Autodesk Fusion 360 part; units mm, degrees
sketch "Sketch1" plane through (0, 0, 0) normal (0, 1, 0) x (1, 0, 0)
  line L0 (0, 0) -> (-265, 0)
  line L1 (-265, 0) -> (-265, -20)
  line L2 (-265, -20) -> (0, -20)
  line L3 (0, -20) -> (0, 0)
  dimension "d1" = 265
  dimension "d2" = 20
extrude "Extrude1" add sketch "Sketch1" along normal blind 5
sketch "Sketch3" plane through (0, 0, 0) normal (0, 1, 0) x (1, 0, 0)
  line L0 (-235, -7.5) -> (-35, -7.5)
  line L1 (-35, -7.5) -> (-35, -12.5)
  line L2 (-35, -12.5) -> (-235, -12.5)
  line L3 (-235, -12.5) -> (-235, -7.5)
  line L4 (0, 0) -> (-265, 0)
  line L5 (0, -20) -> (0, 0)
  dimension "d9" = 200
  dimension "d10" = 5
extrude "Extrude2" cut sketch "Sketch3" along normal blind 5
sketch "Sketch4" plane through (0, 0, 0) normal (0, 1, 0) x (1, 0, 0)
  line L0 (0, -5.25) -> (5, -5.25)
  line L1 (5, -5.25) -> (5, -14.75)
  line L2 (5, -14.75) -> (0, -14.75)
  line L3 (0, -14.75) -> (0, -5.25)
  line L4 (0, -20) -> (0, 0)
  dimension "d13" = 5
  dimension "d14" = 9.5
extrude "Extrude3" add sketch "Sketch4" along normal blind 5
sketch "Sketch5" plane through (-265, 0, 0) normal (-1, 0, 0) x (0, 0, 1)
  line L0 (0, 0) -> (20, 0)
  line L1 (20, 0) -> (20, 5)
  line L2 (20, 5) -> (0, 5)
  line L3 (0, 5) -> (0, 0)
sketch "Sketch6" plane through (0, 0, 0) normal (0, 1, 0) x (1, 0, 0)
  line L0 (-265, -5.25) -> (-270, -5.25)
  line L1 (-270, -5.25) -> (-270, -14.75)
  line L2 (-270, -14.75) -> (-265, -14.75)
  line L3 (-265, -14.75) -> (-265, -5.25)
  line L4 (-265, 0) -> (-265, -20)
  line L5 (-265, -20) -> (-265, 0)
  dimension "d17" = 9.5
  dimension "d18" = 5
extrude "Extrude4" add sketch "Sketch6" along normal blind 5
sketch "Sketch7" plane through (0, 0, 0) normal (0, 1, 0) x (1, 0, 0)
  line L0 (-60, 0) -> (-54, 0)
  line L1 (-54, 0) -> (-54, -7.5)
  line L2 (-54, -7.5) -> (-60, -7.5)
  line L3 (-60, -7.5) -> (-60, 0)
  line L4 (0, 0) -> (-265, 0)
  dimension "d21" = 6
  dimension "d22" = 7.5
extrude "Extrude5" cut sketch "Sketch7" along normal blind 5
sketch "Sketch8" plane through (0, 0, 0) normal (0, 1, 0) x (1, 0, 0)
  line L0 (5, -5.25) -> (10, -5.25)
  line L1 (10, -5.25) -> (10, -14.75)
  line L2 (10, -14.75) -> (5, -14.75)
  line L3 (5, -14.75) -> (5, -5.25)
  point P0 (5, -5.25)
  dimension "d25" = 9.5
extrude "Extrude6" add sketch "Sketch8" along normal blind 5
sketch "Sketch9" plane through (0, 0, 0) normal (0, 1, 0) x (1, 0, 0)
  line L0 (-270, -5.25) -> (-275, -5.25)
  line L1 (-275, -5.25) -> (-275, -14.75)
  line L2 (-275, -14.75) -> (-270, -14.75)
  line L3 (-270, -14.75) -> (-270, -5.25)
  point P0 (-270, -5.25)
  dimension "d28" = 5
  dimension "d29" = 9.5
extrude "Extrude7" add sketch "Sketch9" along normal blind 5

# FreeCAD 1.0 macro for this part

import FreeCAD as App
import Part
import Sketcher

V = App.Vector
Q = App.Units.Quantity


def add_polygon(sketch, points):
    """Adds a closed chain of lines whose ends are joined by coincident constraints."""
    first, n = sketch.GeometryCount, len(points)
    for a, b in zip(points, points[1:] + points[:1]):
        sketch.addGeometry(Part.LineSegment(App.Vector(*a, 0), App.Vector(*b, 0)), False)
    for i in range(n):
        sketch.addConstraint(Sketcher.Constraint("Coincident", first + i, 2, first + (i + 1) % n, 1))

doc = App.newDocument("Part")
params = doc.addObject("Spreadsheet::Sheet", "Params")
for row, (alias, value) in enumerate([
    ("sketch1_width", "265 mm"),
    ("sketch1_height", "20 mm"),
    ("pad1_length", "5 mm"),
    ("sketch2_width", "200 mm"),
    ("sketch2_height", "5 mm"),
    ("pocket1_length", "5 mm"),
    ("sketch3_width", "5 mm"),
    ("sketch3_height", "9.5 mm"),
    ("pad2_length", "5 mm"),
    ("sketch4_width", "5 mm"),
    ("sketch4_height", "9.5 mm"),
    ("pad3_length", "5 mm"),
    ("sketch5_width", "6 mm"),
    ("sketch5_height", "7.5 mm"),
    ("pocket2_length", "5 mm"),
    ("sketch6_height", "9.5 mm"),
    ("sketch6_width", "5 mm"),
    ("pad4_length", "5 mm"),
    ("sketch7_width", "5 mm"),
    ("sketch7_height", "9.5 mm"),
    ("pad5_length", "5 mm"),
], start=1):
    params.set(f"A{row}", alias)
    params.set(f"B{row}", "=" + value)
    params.setAlias(f"B{row}", alias)

body = doc.addObject("PartDesign::Body", "Body")

sketch1 = body.newObject("Sketcher::SketchObject", "Sketch")
sketch1.AttachmentSupport = (doc.getObject("XZ_Plane"), [""])
sketch1.MapMode = "FlatFace"
add_polygon(sketch1, [(0, 20), (0, 0), (-265, 0), (-265, 20)])
sketch1.addConstraint(Sketcher.Constraint("Vertical", 0))
sketch1.addConstraint(Sketcher.Constraint("Horizontal", 1))
sketch1.addConstraint(Sketcher.Constraint("Vertical", 2))
sketch1.addConstraint(Sketcher.Constraint("Horizontal", 3))
sketch1.addConstraint(Sketcher.Constraint("Coincident", 0, 2, -1, 1))
sketch1.addConstraint(Sketcher.Constraint("DistanceX", 1, 2, 1, 1, Q("265 mm")))
sketch1.addConstraint(Sketcher.Constraint("DistanceY", 0, 2, 0, 1, Q("20 mm")))
sketch1.setExpression("Constraints[9]", "Params.sketch1_width")
sketch1.setExpression("Constraints[10]", "Params.sketch1_height")
pad1 = body.newObject("PartDesign::Pad", "Pad")
pad1.Profile = sketch1
pad1.setExpression("Length", "Params.pad1_length")
pad1.Reversed = True

sketch2 = body.newObject("Sketcher::SketchObject", "Sketch001")
sketch2.AttachmentSupport = (doc.getObject("XZ_Plane"), [""])
sketch2.MapMode = "FlatFace"
add_polygon(sketch2, [(-35, 8), (-235, 8), (-235, 12), (-35, 12)])
sketch2.addConstraint(Sketcher.Constraint("Horizontal", 0))
sketch2.addConstraint(Sketcher.Constraint("Vertical", 1))
sketch2.addConstraint(Sketcher.Constraint("Horizontal", 2))
sketch2.addConstraint(Sketcher.Constraint("Vertical", 3))
sketch2.addConstraint(Sketcher.Constraint("DistanceX", 0, 2, 0, 1, Q("200 mm")))
sketch2.addConstraint(Sketcher.Constraint("DistanceY", 1, 1, 1, 2, Q("5 mm")))
sketch2.addConstraint(Sketcher.Constraint("DistanceX", 0, 2, -1, 1, Q("235 mm")))
sketch2.addConstraint(Sketcher.Constraint("DistanceY", -1, 1, 0, 2, Q("7.5 mm")))
sketch2.setExpression("Constraints[8]", "Params.sketch2_width")
sketch2.setExpression("Constraints[9]", "Params.sketch2_height")
pocket1 = body.newObject("PartDesign::Pocket", "Pocket")
pocket1.Profile = sketch2
pocket1.setExpression("Length", "Params.pocket1_length")

sketch3 = body.newObject("Sketcher::SketchObject", "Sketch002")
sketch3.AttachmentSupport = (doc.getObject("XZ_Plane"), [""])
sketch3.MapMode = "FlatFace"
add_polygon(sketch3, [(5, 5), (0, 5), (0, 15), (5, 15)])
sketch3.addConstraint(Sketcher.Constraint("Horizontal", 0))
sketch3.addConstraint(Sketcher.Constraint("Vertical", 1))
sketch3.addConstraint(Sketcher.Constraint("Horizontal", 2))
sketch3.addConstraint(Sketcher.Constraint("Vertical", 3))
sketch3.addConstraint(Sketcher.Constraint("PointOnObject", 0, 2, -2))
sketch3.addConstraint(Sketcher.Constraint("DistanceX", 0, 2, 0, 1, Q("5 mm")))
sketch3.addConstraint(Sketcher.Constraint("DistanceY", 1, 1, 1, 2, Q("9.5 mm")))
sketch3.addConstraint(Sketcher.Constraint("DistanceY", -1, 1, 0, 2, Q("5.25 mm")))
sketch3.setExpression("Constraints[9]", "Params.sketch3_width")
sketch3.setExpression("Constraints[10]", "Params.sketch3_height")
pad2 = body.newObject("PartDesign::Pad", "Pad001")
pad2.Profile = sketch3
pad2.setExpression("Length", "Params.pad2_length")
pad2.Reversed = True

sketch4 = body.newObject("Sketcher::SketchObject", "Sketch003")
sketch4.AttachmentSupport = (doc.getObject("XZ_Plane"), [""])
sketch4.MapMode = "FlatFace"
add_polygon(sketch4, [(-265, 15), (-265, 5), (-270, 5), (-270, 15)])
sketch4.addConstraint(Sketcher.Constraint("Vertical", 0))
sketch4.addConstraint(Sketcher.Constraint("Horizontal", 1))
sketch4.addConstraint(Sketcher.Constraint("Vertical", 2))
sketch4.addConstraint(Sketcher.Constraint("Horizontal", 3))
sketch4.addConstraint(Sketcher.Constraint("DistanceX", 1, 2, 1, 1, Q("5 mm")))
sketch4.addConstraint(Sketcher.Constraint("DistanceY", 0, 2, 0, 1, Q("9.5 mm")))
sketch4.addConstraint(Sketcher.Constraint("DistanceX", 0, 2, -1, 1, Q("265 mm")))
sketch4.addConstraint(Sketcher.Constraint("DistanceY", -1, 1, 0, 2, Q("5.25 mm")))
sketch4.setExpression("Constraints[8]", "Params.sketch4_width")
sketch4.setExpression("Constraints[9]", "Params.sketch4_height")
pad3 = body.newObject("PartDesign::Pad", "Pad002")
pad3.Profile = sketch4
pad3.setExpression("Length", "Params.pad3_length")
pad3.Reversed = True

sketch5 = body.newObject("Sketcher::SketchObject", "Sketch004")
sketch5.AttachmentSupport = (doc.getObject("XZ_Plane"), [""])
sketch5.MapMode = "FlatFace"
add_polygon(sketch5, [(-54, 0), (-60, 0), (-60, 8), (-54, 8)])
sketch5.addConstraint(Sketcher.Constraint("Horizontal", 0))
sketch5.addConstraint(Sketcher.Constraint("Vertical", 1))
sketch5.addConstraint(Sketcher.Constraint("Horizontal", 2))
sketch5.addConstraint(Sketcher.Constraint("Vertical", 3))
sketch5.addConstraint(Sketcher.Constraint("PointOnObject", 0, 2, -1))
sketch5.addConstraint(Sketcher.Constraint("DistanceX", 0, 2, 0, 1, Q("6 mm")))
sketch5.addConstraint(Sketcher.Constraint("DistanceY", 1, 1, 1, 2, Q("7.5 mm")))
sketch5.addConstraint(Sketcher.Constraint("DistanceX", 0, 2, -1, 1, Q("60 mm")))
sketch5.setExpression("Constraints[9]", "Params.sketch5_width")
sketch5.setExpression("Constraints[10]", "Params.sketch5_height")
pocket2 = body.newObject("PartDesign::Pocket", "Pocket001")
pocket2.Profile = sketch5
pocket2.setExpression("Length", "Params.pocket2_length")

sketch6 = body.newObject("Sketcher::SketchObject", "Sketch005")
sketch6.AttachmentSupport = (doc.getObject("XZ_Plane"), [""])
sketch6.MapMode = "FlatFace"
add_polygon(sketch6, [(10, 5), (5, 5), (5, 15), (10, 15)])
sketch6.addConstraint(Sketcher.Constraint("Horizontal", 0))
sketch6.addConstraint(Sketcher.Constraint("Vertical", 1))
sketch6.addConstraint(Sketcher.Constraint("Horizontal", 2))
sketch6.addConstraint(Sketcher.Constraint("Vertical", 3))
sketch6.addConstraint(Sketcher.Constraint("DistanceY", 1, 1, 1, 2, Q("9.5 mm")))
sketch6.addConstraint(Sketcher.Constraint("DistanceX", 0, 2, 0, 1, Q("5 mm")))
sketch6.addConstraint(Sketcher.Constraint("DistanceX", -1, 1, 0, 2, Q("5 mm")))
sketch6.addConstraint(Sketcher.Constraint("DistanceY", -1, 1, 0, 2, Q("5.25 mm")))
sketch6.setExpression("Constraints[8]", "Params.sketch6_height")
sketch6.setExpression("Constraints[9]", "Params.sketch6_width")
pad4 = body.newObject("PartDesign::Pad", "Pad003")
pad4.Profile = sketch6
pad4.setExpression("Length", "Params.pad4_length")
pad4.Reversed = True

sketch7 = body.newObject("Sketcher::SketchObject", "Sketch006")
sketch7.AttachmentSupport = (doc.getObject("XZ_Plane"), [""])
sketch7.MapMode = "FlatFace"
add_polygon(sketch7, [(-270, 15), (-270, 5), (-275, 5), (-275, 15)])
sketch7.addConstraint(Sketcher.Constraint("Vertical", 0))
sketch7.addConstraint(Sketcher.Constraint("Horizontal", 1))
sketch7.addConstraint(Sketcher.Constraint("Vertical", 2))
sketch7.addConstraint(Sketcher.Constraint("Horizontal", 3))
sketch7.addConstraint(Sketcher.Constraint("DistanceX", 1, 2, 1, 1, Q("5 mm")))
sketch7.addConstraint(Sketcher.Constraint("DistanceY", 0, 2, 0, 1, Q("9.5 mm")))
sketch7.addConstraint(Sketcher.Constraint("DistanceX", 0, 2, -1, 1, Q("270 mm")))
sketch7.addConstraint(Sketcher.Constraint("DistanceY", -1, 1, 0, 2, Q("5.25 mm")))
sketch7.setExpression("Constraints[8]", "Params.sketch7_width")
sketch7.setExpression("Constraints[9]", "Params.sketch7_height")
pad5 = body.newObject("PartDesign::Pad", "Pad004")
pad5.Profile = sketch7
pad5.setExpression("Length", "Params.pad5_length")
pad5.Reversed = True

doc.recompute()
